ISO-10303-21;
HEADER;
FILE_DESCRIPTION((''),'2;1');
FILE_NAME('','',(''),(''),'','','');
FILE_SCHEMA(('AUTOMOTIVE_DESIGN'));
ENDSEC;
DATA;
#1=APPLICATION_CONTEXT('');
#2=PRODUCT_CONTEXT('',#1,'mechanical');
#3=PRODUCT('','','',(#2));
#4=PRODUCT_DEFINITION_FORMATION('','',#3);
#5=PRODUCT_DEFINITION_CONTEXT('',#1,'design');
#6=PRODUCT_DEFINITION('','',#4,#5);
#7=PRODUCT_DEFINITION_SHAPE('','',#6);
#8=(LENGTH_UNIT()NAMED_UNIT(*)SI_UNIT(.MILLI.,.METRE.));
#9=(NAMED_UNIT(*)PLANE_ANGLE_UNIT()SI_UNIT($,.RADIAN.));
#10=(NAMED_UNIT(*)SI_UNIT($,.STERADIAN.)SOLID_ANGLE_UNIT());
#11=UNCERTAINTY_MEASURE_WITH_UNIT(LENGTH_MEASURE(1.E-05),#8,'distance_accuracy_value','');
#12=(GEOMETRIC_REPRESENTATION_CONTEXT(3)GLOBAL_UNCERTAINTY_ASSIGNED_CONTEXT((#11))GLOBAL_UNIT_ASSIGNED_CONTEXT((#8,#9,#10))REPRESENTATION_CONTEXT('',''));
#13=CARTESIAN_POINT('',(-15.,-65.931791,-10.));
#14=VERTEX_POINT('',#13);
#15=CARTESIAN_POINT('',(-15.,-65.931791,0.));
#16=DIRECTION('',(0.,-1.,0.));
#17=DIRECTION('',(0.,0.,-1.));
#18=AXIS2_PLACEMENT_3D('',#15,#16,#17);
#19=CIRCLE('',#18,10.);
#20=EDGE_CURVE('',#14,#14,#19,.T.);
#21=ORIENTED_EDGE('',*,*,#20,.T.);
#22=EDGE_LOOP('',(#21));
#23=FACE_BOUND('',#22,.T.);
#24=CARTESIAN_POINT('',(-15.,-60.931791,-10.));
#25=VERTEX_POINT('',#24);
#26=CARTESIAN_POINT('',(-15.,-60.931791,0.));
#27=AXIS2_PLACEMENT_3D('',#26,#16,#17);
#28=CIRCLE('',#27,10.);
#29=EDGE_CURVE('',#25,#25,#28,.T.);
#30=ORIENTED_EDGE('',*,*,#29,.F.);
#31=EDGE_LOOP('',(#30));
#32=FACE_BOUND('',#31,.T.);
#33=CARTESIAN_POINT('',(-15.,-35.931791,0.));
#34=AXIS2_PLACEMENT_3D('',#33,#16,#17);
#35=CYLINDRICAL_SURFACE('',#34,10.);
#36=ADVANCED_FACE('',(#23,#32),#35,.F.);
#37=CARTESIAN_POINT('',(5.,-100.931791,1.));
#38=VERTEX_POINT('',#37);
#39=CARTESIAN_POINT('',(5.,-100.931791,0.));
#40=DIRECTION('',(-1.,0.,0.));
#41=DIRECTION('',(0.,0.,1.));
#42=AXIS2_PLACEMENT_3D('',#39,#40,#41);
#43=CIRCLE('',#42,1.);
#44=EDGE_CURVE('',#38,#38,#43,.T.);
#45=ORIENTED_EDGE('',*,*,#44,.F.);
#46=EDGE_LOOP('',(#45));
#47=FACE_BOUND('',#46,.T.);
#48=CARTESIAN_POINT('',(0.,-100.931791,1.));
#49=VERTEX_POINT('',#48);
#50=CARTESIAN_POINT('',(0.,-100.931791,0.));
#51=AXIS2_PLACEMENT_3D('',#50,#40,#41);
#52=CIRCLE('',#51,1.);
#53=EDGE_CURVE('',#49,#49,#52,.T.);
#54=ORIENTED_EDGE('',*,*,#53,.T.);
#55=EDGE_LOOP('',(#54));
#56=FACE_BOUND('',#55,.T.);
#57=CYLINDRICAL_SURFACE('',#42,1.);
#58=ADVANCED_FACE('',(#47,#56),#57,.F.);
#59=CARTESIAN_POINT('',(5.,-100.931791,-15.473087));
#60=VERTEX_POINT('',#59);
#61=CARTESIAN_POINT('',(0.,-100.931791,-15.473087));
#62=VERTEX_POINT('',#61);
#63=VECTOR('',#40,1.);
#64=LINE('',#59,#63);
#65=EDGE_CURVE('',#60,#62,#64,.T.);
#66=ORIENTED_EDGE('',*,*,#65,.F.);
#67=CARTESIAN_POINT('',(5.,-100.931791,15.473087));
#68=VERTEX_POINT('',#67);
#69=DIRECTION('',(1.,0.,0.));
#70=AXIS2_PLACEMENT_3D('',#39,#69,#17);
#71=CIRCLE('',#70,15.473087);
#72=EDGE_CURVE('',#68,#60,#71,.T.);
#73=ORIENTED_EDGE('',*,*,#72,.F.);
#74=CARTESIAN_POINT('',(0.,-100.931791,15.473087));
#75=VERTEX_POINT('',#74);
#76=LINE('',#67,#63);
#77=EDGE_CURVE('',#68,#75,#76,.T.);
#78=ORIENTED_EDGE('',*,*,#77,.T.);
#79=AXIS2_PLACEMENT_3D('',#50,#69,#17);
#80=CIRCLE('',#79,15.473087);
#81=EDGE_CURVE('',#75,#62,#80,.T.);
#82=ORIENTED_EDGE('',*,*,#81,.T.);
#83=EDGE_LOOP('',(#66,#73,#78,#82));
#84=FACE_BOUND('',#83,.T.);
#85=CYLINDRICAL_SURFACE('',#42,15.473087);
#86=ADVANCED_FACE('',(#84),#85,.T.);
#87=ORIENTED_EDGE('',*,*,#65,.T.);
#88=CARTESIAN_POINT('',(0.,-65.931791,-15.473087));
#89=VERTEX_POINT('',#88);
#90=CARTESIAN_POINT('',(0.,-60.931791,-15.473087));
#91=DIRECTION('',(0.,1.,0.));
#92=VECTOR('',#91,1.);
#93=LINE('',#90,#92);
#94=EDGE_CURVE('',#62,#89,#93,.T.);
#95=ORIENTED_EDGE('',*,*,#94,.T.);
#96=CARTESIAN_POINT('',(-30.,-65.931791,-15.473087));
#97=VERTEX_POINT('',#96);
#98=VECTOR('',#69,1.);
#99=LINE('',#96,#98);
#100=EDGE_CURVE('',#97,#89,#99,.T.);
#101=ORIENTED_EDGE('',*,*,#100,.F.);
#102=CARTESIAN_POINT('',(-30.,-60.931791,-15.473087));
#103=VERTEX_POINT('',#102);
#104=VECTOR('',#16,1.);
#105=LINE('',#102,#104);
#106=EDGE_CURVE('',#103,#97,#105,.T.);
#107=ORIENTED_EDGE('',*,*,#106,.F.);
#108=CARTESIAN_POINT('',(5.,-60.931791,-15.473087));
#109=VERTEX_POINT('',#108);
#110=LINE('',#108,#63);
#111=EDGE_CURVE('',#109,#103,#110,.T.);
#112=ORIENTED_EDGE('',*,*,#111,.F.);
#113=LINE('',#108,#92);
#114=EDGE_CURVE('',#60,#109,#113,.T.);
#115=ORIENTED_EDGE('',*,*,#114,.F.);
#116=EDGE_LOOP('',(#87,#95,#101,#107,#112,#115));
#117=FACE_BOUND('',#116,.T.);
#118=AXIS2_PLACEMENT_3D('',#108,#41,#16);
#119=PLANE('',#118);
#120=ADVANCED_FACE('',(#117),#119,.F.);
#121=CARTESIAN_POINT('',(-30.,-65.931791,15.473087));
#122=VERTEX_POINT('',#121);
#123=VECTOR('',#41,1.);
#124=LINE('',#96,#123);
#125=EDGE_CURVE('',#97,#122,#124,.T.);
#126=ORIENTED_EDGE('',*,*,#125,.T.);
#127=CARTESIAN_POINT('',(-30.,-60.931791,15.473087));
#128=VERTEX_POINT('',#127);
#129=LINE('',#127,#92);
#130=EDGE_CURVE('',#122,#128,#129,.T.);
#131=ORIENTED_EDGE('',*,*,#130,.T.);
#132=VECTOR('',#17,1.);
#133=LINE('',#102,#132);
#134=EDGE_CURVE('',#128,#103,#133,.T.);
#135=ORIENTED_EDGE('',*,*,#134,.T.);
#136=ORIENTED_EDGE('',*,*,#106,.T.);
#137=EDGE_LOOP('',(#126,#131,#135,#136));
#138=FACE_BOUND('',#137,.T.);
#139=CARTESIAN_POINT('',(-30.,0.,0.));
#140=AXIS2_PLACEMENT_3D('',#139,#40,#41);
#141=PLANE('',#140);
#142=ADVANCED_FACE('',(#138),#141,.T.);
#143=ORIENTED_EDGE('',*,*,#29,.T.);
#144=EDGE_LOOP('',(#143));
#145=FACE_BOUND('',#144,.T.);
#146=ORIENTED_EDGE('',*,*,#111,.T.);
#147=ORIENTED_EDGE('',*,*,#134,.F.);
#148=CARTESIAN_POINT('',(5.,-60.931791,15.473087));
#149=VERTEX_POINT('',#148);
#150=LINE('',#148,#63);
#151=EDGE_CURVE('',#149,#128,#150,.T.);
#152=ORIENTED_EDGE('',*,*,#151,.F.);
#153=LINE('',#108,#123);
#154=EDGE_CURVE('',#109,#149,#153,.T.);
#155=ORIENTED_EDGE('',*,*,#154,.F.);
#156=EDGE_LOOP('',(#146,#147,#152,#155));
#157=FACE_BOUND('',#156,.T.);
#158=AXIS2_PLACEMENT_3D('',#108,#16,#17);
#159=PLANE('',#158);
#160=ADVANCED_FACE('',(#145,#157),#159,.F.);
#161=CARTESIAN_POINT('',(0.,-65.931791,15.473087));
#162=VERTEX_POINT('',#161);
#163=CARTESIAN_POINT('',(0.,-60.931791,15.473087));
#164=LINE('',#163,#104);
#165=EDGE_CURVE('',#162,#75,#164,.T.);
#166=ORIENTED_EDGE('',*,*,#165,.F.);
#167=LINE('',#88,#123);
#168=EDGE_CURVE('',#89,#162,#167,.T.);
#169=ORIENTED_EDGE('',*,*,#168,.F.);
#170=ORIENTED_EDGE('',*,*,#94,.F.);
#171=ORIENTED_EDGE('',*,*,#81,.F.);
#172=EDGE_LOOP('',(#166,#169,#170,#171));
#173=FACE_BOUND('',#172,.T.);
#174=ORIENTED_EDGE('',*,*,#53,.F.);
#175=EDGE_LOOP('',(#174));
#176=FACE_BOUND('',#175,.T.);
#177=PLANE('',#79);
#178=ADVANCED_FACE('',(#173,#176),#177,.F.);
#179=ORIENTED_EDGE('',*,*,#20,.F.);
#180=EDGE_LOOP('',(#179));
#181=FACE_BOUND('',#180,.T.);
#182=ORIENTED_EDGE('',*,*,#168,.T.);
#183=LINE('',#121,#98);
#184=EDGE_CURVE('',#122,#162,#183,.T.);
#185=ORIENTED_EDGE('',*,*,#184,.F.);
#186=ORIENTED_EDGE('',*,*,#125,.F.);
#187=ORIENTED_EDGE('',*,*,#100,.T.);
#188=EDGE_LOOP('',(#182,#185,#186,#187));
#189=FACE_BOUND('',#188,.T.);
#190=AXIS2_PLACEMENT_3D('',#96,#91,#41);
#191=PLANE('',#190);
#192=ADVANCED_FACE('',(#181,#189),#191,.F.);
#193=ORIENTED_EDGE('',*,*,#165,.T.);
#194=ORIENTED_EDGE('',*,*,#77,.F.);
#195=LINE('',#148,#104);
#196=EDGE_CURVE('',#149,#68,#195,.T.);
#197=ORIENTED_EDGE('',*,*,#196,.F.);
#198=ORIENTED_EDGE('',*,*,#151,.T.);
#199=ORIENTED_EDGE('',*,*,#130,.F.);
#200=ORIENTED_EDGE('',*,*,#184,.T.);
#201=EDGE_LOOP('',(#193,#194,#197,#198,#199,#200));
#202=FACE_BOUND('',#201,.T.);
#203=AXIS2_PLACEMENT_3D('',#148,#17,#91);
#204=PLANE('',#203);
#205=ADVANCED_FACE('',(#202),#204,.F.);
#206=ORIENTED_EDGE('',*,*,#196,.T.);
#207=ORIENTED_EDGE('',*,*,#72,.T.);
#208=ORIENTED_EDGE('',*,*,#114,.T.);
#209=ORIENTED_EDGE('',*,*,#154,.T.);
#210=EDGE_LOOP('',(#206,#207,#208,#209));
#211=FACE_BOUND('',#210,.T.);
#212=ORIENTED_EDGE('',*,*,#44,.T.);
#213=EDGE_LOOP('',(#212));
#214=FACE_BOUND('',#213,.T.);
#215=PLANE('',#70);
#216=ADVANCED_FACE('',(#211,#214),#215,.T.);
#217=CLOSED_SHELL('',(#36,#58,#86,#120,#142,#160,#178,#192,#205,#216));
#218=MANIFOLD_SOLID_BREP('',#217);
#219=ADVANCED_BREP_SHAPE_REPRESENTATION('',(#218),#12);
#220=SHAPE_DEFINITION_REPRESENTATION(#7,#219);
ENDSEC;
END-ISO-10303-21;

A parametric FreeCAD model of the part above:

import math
import FreeCAD as App
import Part
import Sketcher

V = App.Vector


def add_polygon(sketch, points):
    """Adds a closed chain of lines whose ends are joined by coincident constraints."""
    first, n = sketch.GeometryCount, len(points)
    for a, b in zip(points, points[1:] + points[:1]):
        sketch.addGeometry(Part.LineSegment(App.Vector(*a, 0), App.Vector(*b, 0)), False)
    for i in range(n):
        sketch.addConstraint(Sketcher.Constraint("Coincident", first + i, 2, first + (i + 1) % n, 1))

doc = App.newDocument("Part")
params = doc.addObject("Spreadsheet::Sheet", "Params")
for row, (alias, value) in enumerate([
    ("sketch1_width", "40 mm"),
    ("pad1_length", "5 mm"),
    ("sketch2_diameter", "2 mm"),
    ("pocket1_length", "5 mm"),
    ("sketch3_width", "5 mm"),
    ("pad2_length", "30 mm"),
    ("sketch4_diameter", "20 mm"),
    ("pocket2_length", "30 mm"),
], start=1):
    params.set(f"A{row}", alias)
    params.set(f"B{row}", "=" + value)
    params.setAlias(f"B{row}", alias)

body = doc.addObject("PartDesign::Body", "Body")

# Sketch on YZ plane
sketch1 = doc.addObject("Sketcher::SketchObject", "Sketch")
body.addObject(sketch1)
sketch1.AttachmentSupport = (doc.YZ_Plane, [""])
sketch1.MapMode = "FlatFace"
sketch1.addGeometry(Part.LineSegment(V(-61, -15, 0), V(-61, 15, 0)), False)
sketch1.addGeometry(Part.LineSegment(V(-61, 15, 0), V(-101, 15, 0)), False)
sketch1.addGeometry(Part.ArcOfCircle(Part.Circle(V(-101, 0, 0), V(0, 0, 1), 15), math.radians(90), math.radians(270)), False)
sketch1.addGeometry(Part.LineSegment(V(-101, -15, 0), V(-61, -15, 0)), False)
sketch1.addConstraint(Sketcher.Constraint("Coincident", 0, 2, 1, 1))
sketch1.addConstraint(Sketcher.Constraint("Tangent", 1, 2, 2, 1))
sketch1.addConstraint(Sketcher.Constraint("Tangent", 2, 2, 3, 1))
sketch1.addConstraint(Sketcher.Constraint("Coincident", 3, 2, 0, 1))
sketch1.addConstraint(Sketcher.Constraint("Vertical", 0))
sketch1.addConstraint(Sketcher.Constraint("Horizontal", 1))
sketch1.addConstraint(Sketcher.Constraint("Horizontal", 3))
sketch1.addConstraint(Sketcher.Constraint("PointOnObject", 2, 3, -1))
sketch1.addConstraint(Sketcher.Constraint("DistanceX", 1, 2, 1, 1, 40.0))
sketch1.addConstraint(Sketcher.Constraint("Radius", 2, 15.473087))
sketch1.addConstraint(Sketcher.Constraint("DistanceX", 2, 3, -1, 1, 100.931791))
sketch1.setExpression("Constraints[8]", "Params.sketch1_width")
pad1 = doc.addObject("PartDesign::Pad", "Pad")
body.addObject(pad1)
pad1.Profile = sketch1
pad1.setExpression("Length", "Params.pad1_length")

# Sketch on YZ plane
sketch2 = doc.addObject("Sketcher::SketchObject", "Sketch001")
body.addObject(sketch2)
sketch2.AttachmentSupport = (doc.YZ_Plane, [""])
sketch2.MapMode = "FlatFace"
sketch2.addGeometry(Part.Circle(V(-100.9, 0, 0), V(0, 0, 1), 1), False)
sketch2.addConstraint(Sketcher.Constraint("PointOnObject", 0, 3, -1))
sketch2.addConstraint(Sketcher.Constraint("Diameter", 0, 2.0))
sketch2.addConstraint(Sketcher.Constraint("DistanceX", 0, 3, -1, 1, 100.931791))
sketch2.setExpression("Constraints[1]", "Params.sketch2_diameter")
pocket1 = doc.addObject("PartDesign::Pocket", "Pocket")
body.addObject(pocket1)
pocket1.Profile = sketch2
pocket1.setExpression("Length", "Params.pocket1_length")
pocket1.Reversed = True

# Sketch on YZ plane
sketch3 = doc.addObject("Sketcher::SketchObject", "Sketch002")
body.addObject(sketch3)
sketch3.AttachmentSupport = (doc.YZ_Plane, [""])
sketch3.MapMode = "FlatFace"
add_polygon(sketch3, [(-61, -15), (-66, -15), (-66, 15), (-61, 15)])  # lines 0-3
sketch3.addConstraint(Sketcher.Constraint("Horizontal", 0))
sketch3.addConstraint(Sketcher.Constraint("Vertical", 1))
sketch3.addConstraint(Sketcher.Constraint("Horizontal", 2))
sketch3.addConstraint(Sketcher.Constraint("Vertical", 3))
sketch3.addConstraint(Sketcher.Constraint("DistanceX", 0, 2, 0, 1, 5.0))
sketch3.addConstraint(Sketcher.Constraint("DistanceY", 1, 1, 1, 2, 30.946175))
sketch3.addConstraint(Sketcher.Constraint("DistanceX", 0, 2, -1, 1, 65.931791))
sketch3.addConstraint(Sketcher.Constraint("DistanceY", 0, 2, -1, 1, 15.473087))
sketch3.setExpression("Constraints[8]", "Params.sketch3_width")
pad2 = doc.addObject("PartDesign::Pad", "Pad001")
body.addObject(pad2)
pad2.Profile = sketch3
pad2.setExpression("Length", "Params.pad2_length")
pad2.Reversed = True

# Sketch on XZ plane
sketch4 = doc.addObject("Sketcher::SketchObject", "Sketch003")
body.addObject(sketch4)
sketch4.AttachmentSupport = (doc.XZ_Plane, [""])
sketch4.MapMode = "FlatFace"
sketch4.AttachmentOffset = App.Placement(V(0, 0, 65.931791), App.Rotation())
sketch4.addGeometry(Part.Circle(V(-15, 0, 0), V(0, 0, 1), 10), False)
sketch4.addConstraint(Sketcher.Constraint("PointOnObject", 0, 3, -1))
sketch4.addConstraint(Sketcher.Constraint("Diameter", 0, 20.0))
sketch4.addConstraint(Sketcher.Constraint("DistanceX", 0, 3, -1, 1, 15.0))
sketch4.setExpression("Constraints[1]", "Params.sketch4_diameter")
pocket2 = doc.addObject("PartDesign::Pocket", "Pocket001")
body.addObject(pocket2)
pocket2.Profile = sketch4
pocket2.setExpression("Length", "Params.pocket2_length")

doc.recompute()
